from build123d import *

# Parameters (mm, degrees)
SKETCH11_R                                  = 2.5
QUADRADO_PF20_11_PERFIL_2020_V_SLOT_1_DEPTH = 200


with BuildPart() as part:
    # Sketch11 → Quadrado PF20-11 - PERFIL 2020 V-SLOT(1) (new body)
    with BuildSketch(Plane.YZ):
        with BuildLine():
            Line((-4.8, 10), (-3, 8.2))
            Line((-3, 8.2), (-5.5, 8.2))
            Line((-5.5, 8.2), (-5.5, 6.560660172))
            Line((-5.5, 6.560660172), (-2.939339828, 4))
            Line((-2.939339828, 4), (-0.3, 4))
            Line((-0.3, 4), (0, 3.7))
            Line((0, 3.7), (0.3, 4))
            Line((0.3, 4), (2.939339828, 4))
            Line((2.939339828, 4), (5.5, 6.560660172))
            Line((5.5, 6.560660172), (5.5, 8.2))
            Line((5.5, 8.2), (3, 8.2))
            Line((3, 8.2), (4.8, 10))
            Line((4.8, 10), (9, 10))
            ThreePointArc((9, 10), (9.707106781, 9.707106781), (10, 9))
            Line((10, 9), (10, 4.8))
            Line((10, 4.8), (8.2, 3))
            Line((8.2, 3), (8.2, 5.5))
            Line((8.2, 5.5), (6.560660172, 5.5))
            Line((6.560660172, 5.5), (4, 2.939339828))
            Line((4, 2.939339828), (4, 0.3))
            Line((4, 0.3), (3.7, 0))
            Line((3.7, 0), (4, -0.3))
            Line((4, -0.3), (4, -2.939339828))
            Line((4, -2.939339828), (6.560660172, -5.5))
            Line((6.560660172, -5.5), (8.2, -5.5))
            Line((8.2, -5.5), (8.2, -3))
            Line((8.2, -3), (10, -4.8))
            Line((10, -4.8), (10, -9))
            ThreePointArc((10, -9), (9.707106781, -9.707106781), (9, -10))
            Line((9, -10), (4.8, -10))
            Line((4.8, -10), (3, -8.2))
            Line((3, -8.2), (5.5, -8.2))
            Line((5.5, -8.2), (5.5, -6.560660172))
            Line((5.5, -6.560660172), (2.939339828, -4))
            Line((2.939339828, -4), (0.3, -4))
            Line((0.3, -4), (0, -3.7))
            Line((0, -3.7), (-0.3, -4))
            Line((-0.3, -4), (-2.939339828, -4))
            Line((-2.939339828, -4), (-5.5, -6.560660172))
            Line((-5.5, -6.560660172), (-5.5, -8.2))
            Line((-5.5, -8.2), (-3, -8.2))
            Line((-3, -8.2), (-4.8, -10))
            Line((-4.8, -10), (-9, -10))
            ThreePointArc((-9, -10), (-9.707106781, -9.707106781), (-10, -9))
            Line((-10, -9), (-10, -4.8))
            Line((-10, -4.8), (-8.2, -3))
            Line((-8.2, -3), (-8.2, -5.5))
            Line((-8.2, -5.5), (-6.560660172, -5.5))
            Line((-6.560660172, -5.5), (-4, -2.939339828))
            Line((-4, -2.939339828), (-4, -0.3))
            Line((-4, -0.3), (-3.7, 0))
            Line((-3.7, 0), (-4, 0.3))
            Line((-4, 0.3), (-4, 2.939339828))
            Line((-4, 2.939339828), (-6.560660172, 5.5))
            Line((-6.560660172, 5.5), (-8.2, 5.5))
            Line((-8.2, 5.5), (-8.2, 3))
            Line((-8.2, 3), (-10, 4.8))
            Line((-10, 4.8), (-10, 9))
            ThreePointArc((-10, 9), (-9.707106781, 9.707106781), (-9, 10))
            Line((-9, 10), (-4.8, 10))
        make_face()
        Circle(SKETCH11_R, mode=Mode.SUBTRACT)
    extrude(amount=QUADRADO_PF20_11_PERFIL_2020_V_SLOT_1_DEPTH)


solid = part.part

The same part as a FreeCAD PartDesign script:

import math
import FreeCAD as App
import Part
import Sketcher
from FreeCAD import Vector

doc = App.newDocument("Part")
body = doc.addObject("PartDesign::Body", "Body")

sketch1 = body.newObject("Sketcher::SketchObject", "Sketch")
sketch1.AttachmentSupport = (doc.getObject("YZ_Plane"), [""])
sketch1.MapMode = "FlatFace"
sketch1.addGeometry(Part.LineSegment(Vector(-3, 8.2, 0), Vector(-4.8, 10, 0)), False)
sketch1.addGeometry(Part.LineSegment(Vector(-4.8, 10, 0), Vector(-9, 10, 0)), False)
sketch1.addGeometry(Part.ArcOfCircle(Part.Circle(Vector(-9, 9, 0), Vector(0, 0, 1), 1), math.radians(90), math.radians(180)), False)
sketch1.addGeometry(Part.LineSegment(Vector(-10, 9, 0), Vector(-10, 4.8, 0)), False)
sketch1.addGeometry(Part.LineSegment(Vector(-10, 4.8, 0), Vector(-8.2, 3, 0)), False)
sketch1.addGeometry(Part.LineSegment(Vector(-8.2, 3, 0), Vector(-8.2, 5.5, 0)), False)
sketch1.addGeometry(Part.LineSegment(Vector(-8.2, 5.5, 0), Vector(-6.56, 5.5, 0)), False)
sketch1.addGeometry(Part.LineSegment(Vector(-6.56, 5.5, 0), Vector(-4, 2.94, 0)), False)
sketch1.addGeometry(Part.LineSegment(Vector(-4, 2.94, 0), Vector(-4, 0.3, 0)), False)
sketch1.addGeometry(Part.LineSegment(Vector(-4, 0.3, 0), Vector(-3.7, 0, 0)), False)
sketch1.addGeometry(Part.LineSegment(Vector(-3.7, 0, 0), Vector(-4, -0.3, 0)), False)
sketch1.addGeometry(Part.LineSegment(Vector(-4, -0.3, 0), Vector(-4, -2.94, 0)), False)
sketch1.addGeometry(Part.LineSegment(Vector(-4, -2.94, 0), Vector(-6.56, -5.5, 0)), False)
sketch1.addGeometry(Part.LineSegment(Vector(-6.56, -5.5, 0), Vector(-8.2, -5.5, 0)), False)
sketch1.addGeometry(Part.LineSegment(Vector(-8.2, -5.5, 0), Vector(-8.2, -3, 0)), False)
sketch1.addGeometry(Part.LineSegment(Vector(-8.2, -3, 0), Vector(-10, -4.8, 0)), False)
sketch1.addGeometry(Part.LineSegment(Vector(-10, -4.8, 0), Vector(-10, -9, 0)), False)
sketch1.addGeometry(Part.ArcOfCircle(Part.Circle(Vector(-9, -9, 0), Vector(0, 0, 1), 1), math.radians(-180), math.radians(-90)), False)
sketch1.addGeometry(Part.LineSegment(Vector(-9, -10, 0), Vector(-4.8, -10, 0)), False)
sketch1.addGeometry(Part.LineSegment(Vector(-4.8, -10, 0), Vector(-3, -8.2, 0)), False)
sketch1.addGeometry(Part.LineSegment(Vector(-3, -8.2, 0), Vector(-5.5, -8.2, 0)), False)
sketch1.addGeometry(Part.LineSegment(Vector(-5.5, -8.2, 0), Vector(-5.5, -6.56, 0)), False)
sketch1.addGeometry(Part.LineSegment(Vector(-5.5, -6.56, 0), Vector(-2.94, -4, 0)), False)
sketch1.addGeometry(Part.LineSegment(Vector(-2.94, -4, 0), Vector(-0.3, -4, 0)), False)
sketch1.addGeometry(Part.LineSegment(Vector(-0.3, -4, 0), Vector(0, -3.7, 0)), False)
sketch1.addGeometry(Part.LineSegment(Vector(0, -3.7, 0), Vector(0.3, -4, 0)), False)
sketch1.addGeometry(Part.LineSegment(Vector(0.3, -4, 0), Vector(2.94, -4, 0)), False)
sketch1.addGeometry(Part.LineSegment(Vector(2.94, -4, 0), Vector(5.5, -6.56, 0)), False)
sketch1.addGeometry(Part.LineSegment(Vector(5.5, -6.56, 0), Vector(5.5, -8.2, 0)), False)
sketch1.addGeometry(Part.LineSegment(Vector(5.5, -8.2, 0), Vector(3, -8.2, 0)), False)
sketch1.addGeometry(Part.LineSegment(Vector(3, -8.2, 0), Vector(4.8, -10, 0)), False)
sketch1.addGeometry(Part.LineSegment(Vector(4.8, -10, 0), Vector(9, -10, 0)), False)
sketch1.addGeometry(Part.ArcOfCircle(Part.Circle(Vector(9, -9, 0), Vector(0, 0, 1), 1), math.radians(-90), math.radians(0)), False)
sketch1.addGeometry(Part.LineSegment(Vector(10, -9, 0), Vector(10, -4.8, 0)), False)
sketch1.addGeometry(Part.LineSegment(Vector(10, -4.8, 0), Vector(8.2, -3, 0)), False)
sketch1.addGeometry(Part.LineSegment(Vector(8.2, -3, 0), Vector(8.2, -5.5, 0)), False)
sketch1.addGeometry(Part.LineSegment(Vector(8.2, -5.5, 0), Vector(6.56, -5.5, 0)), False)
sketch1.addGeometry(Part.LineSegment(Vector(6.56, -5.5, 0), Vector(4, -2.94, 0)), False)
sketch1.addGeometry(Part.LineSegment(Vector(4, -2.94, 0), Vector(4, -0.3, 0)), False)
sketch1.addGeometry(Part.LineSegment(Vector(4, -0.3, 0), Vector(3.7, 0, 0)), False)
sketch1.addGeometry(Part.LineSegment(Vector(3.7, 0, 0), Vector(4, 0.3, 0)), False)
sketch1.addGeometry(Part.LineSegment(Vector(4, 0.3, 0), Vector(4, 2.94, 0)), False)
sketch1.addGeometry(Part.LineSegment(Vector(4, 2.94, 0), Vector(6.56, 5.5, 0)), False)
sketch1.addGeometry(Part.LineSegment(Vector(6.56, 5.5, 0), Vector(8.2, 5.5, 0)), False)
sketch1.addGeometry(Part.LineSegment(Vector(8.2, 5.5, 0), Vector(8.2, 3, 0)), False)
sketch1.addGeometry(Part.LineSegment(Vector(8.2, 3, 0), Vector(10, 4.8, 0)), False)
sketch1.addGeometry(Part.LineSegment(Vector(10, 4.8, 0), Vector(10, 9, 0)), False)
sketch1.addGeometry(Part.ArcOfCircle(Part.Circle(Vector(9, 9, 0), Vector(0, 0, 1), 1), math.radians(0), math.radians(90)), False)
sketch1.addGeometry(Part.LineSegment(Vector(9, 10, 0), Vector(4.8, 10, 0)), False)
sketch1.addGeometry(Part.LineSegment(Vector(4.8, 10, 0), Vector(3, 8.2, 0)), False)
sketch1.addGeometry(Part.LineSegment(Vector(3, 8.2, 0), Vector(5.5, 8.2, 0)), False)
sketch1.addGeometry(Part.LineSegment(Vector(5.5, 8.2, 0), Vector(5.5, 6.56, 0)), False)
sketch1.addGeometry(Part.LineSegment(Vector(5.5, 6.56, 0), Vector(2.94, 4, 0)), False)
sketch1.addGeometry(Part.LineSegment(Vector(2.94, 4, 0), Vector(0.3, 4, 0)), False)
sketch1.addGeometry(Part.LineSegment(Vector(0.3, 4, 0), Vector(0, 3.7, 0)), False)
sketch1.addGeometry(Part.LineSegment(Vector(0, 3.7, 0), Vector(-0.3, 4, 0)), False)
sketch1.addGeometry(Part.LineSegment(Vector(-0.3, 4, 0), Vector(-2.94, 4, 0)), False)
sketch1.addGeometry(Part.LineSegment(Vector(-2.94, 4, 0), Vector(-5.5, 6.56, 0)), False)
sketch1.addGeometry(Part.LineSegment(Vector(-5.5, 6.56, 0), Vector(-5.5, 8.2, 0)), False)
sketch1.addGeometry(Part.LineSegment(Vector(-5.5, 8.2, 0), Vector(-3, 8.2, 0)), False)
sketch1.addGeometry(Part.Circle(Vector(0, 0, 0), Vector(0, 0, 1), 2.5), False)
sketch1.addConstraint(Sketcher.Constraint("Coincident", 0, 2, 1, 1))
sketch1.addConstraint(Sketcher.Constraint("Tangent", 1, 2, 2, 1))
sketch1.addConstraint(Sketcher.Constraint("Tangent", 2, 2, 3, 1))
sketch1.addConstraint(Sketcher.Constraint("Coincident", 3, 2, 4, 1))
sketch1.addConstraint(Sketcher.Constraint("Coincident", 4, 2, 5, 1))
sketch1.addConstraint(Sketcher.Constraint("Coincident", 5, 2, 6, 1))
sketch1.addConstraint(Sketcher.Constraint("Coincident", 6, 2, 7, 1))
sketch1.addConstraint(Sketcher.Constraint("Coincident", 7, 2, 8, 1))
sketch1.addConstraint(Sketcher.Constraint("Coincident", 8, 2, 9, 1))
sketch1.addConstraint(Sketcher.Constraint("Coincident", 9, 2, 10, 1))
sketch1.addConstraint(Sketcher.Constraint("Coincident", 10, 2, 11, 1))
sketch1.addConstraint(Sketcher.Constraint("Coincident", 11, 2, 12, 1))
sketch1.addConstraint(Sketcher.Constraint("Coincident", 12, 2, 13, 1))
sketch1.addConstraint(Sketcher.Constraint("Coincident", 13, 2, 14, 1))
sketch1.addConstraint(Sketcher.Constraint("Coincident", 14, 2, 15, 1))
sketch1.addConstraint(Sketcher.Constraint("Coincident", 15, 2, 16, 1))
sketch1.addConstraint(Sketcher.Constraint("Tangent", 16, 2, 17, 1))
sketch1.addConstraint(Sketcher.Constraint("Tangent", 17, 2, 18, 1))
sketch1.addConstraint(Sketcher.Constraint("Coincident", 18, 2, 19, 1))
sketch1.addConstraint(Sketcher.Constraint("Coincident", 19, 2, 20, 1))
sketch1.addConstraint(Sketcher.Constraint("Coincident", 20, 2, 21, 1))
sketch1.addConstraint(Sketcher.Constraint("Coincident", 21, 2, 22, 1))
sketch1.addConstraint(Sketcher.Constraint("Coincident", 22, 2, 23, 1))
sketch1.addConstraint(Sketcher.Constraint("Coincident", 23, 2, 24, 1))
sketch1.addConstraint(Sketcher.Constraint("Coincident", 24, 2, 25, 1))
sketch1.addConstraint(Sketcher.Constraint("Coincident", 25, 2, 26, 1))
sketch1.addConstraint(Sketcher.Constraint("Coincident", 26, 2, 27, 1))
sketch1.addConstraint(Sketcher.Constraint("Coincident", 27, 2, 28, 1))
sketch1.addConstraint(Sketcher.Constraint("Coincident", 28, 2, 29, 1))
sketch1.addConstraint(Sketcher.Constraint("Coincident", 29, 2, 30, 1))
sketch1.addConstraint(Sketcher.Constraint("Coincident", 30, 2, 31, 1))
sketch1.addConstraint(Sketcher.Constraint("Tangent", 31, 2, 32, 1))
sketch1.addConstraint(Sketcher.Constraint("Tangent", 32, 2, 33, 1))
sketch1.addConstraint(Sketcher.Constraint("Coincident", 33, 2, 34, 1))
sketch1.addConstraint(Sketcher.Constraint("Coincident", 34, 2, 35, 1))
sketch1.addConstraint(Sketcher.Constraint("Coincident", 35, 2, 36, 1))
sketch1.addConstraint(Sketcher.Constraint("Coincident", 36, 2, 37, 1))
sketch1.addConstraint(Sketcher.Constraint("Coincident", 37, 2, 38, 1))
sketch1.addConstraint(Sketcher.Constraint("Coincident", 38, 2, 39, 1))
sketch1.addConstraint(Sketcher.Constraint("Coincident", 39, 2, 40, 1))
sketch1.addConstraint(Sketcher.Constraint("Coincident", 40, 2, 41, 1))
sketch1.addConstraint(Sketcher.Constraint("Coincident", 41, 2, 42, 1))
sketch1.addConstraint(Sketcher.Constraint("Coincident", 42, 2, 43, 1))
sketch1.addConstraint(Sketcher.Constraint("Coincident", 43, 2, 44, 1))
sketch1.addConstraint(Sketcher.Constraint("Coincident", 44, 2, 45, 1))
sketch1.addConstraint(Sketcher.Constraint("Coincident", 45, 2, 46, 1))
sketch1.addConstraint(Sketcher.Constraint("Tangent", 46, 2, 47, 1))
sketch1.addConstraint(Sketcher.Constraint("Tangent", 47, 2, 48, 1))
sketch1.addConstraint(Sketcher.Constraint("Coincident", 48, 2, 49, 1))
sketch1.addConstraint(Sketcher.Constraint("Coincident", 49, 2, 50, 1))
sketch1.addConstraint(Sketcher.Constraint("Coincident", 50, 2, 51, 1))
sketch1.addConstraint(Sketcher.Constraint("Coincident", 51, 2, 52, 1))
sketch1.addConstraint(Sketcher.Constraint("Coincident", 52, 2, 53, 1))
sketch1.addConstraint(Sketcher.Constraint("Coincident", 53, 2, 54, 1))
sketch1.addConstraint(Sketcher.Constraint("Coincident", 54, 2, 55, 1))
sketch1.addConstraint(Sketcher.Constraint("Coincident", 55, 2, 56, 1))
sketch1.addConstraint(Sketcher.Constraint("Coincident", 56, 2, 57, 1))
sketch1.addConstraint(Sketcher.Constraint("Coincident", 57, 2, 58, 1))
sketch1.addConstraint(Sketcher.Constraint("Coincident", 58, 2, 59, 1))
sketch1.addConstraint(Sketcher.Constraint("Coincident", 59, 2, 0, 1))
sketch1.addConstraint(Sketcher.Constraint("Horizontal", 1))
sketch1.addConstraint(Sketcher.Constraint("Vertical", 3))
sketch1.addConstraint(Sketcher.Constraint("Vertical", 5))
sketch1.addConstraint(Sketcher.Constraint("Horizontal", 6))
sketch1.addConstraint(Sketcher.Constraint("Vertical", 8))
sketch1.addConstraint(Sketcher.Constraint("Vertical", 11))
sketch1.addConstraint(Sketcher.Constraint("Horizontal", 13))
sketch1.addConstraint(Sketcher.Constraint("Vertical", 14))
sketch1.addConstraint(Sketcher.Constraint("Vertical", 16))
sketch1.addConstraint(Sketcher.Constraint("Horizontal", 18))
sketch1.addConstraint(Sketcher.Constraint("Horizontal", 20))
sketch1.addConstraint(Sketcher.Constraint("Vertical", 21))
sketch1.addConstraint(Sketcher.Constraint("Horizontal", 23))
sketch1.addConstraint(Sketcher.Constraint("Horizontal", 26))
sketch1.addConstraint(Sketcher.Constraint("Vertical", 28))
sketch1.addConstraint(Sketcher.Constraint("Horizontal", 29))
sketch1.addConstraint(Sketcher.Constraint("Horizontal", 31))
sketch1.addConstraint(Sketcher.Constraint("Vertical", 33))
sketch1.addConstraint(Sketcher.Constraint("Vertical", 35))
sketch1.addConstraint(Sketcher.Constraint("Horizontal", 36))
sketch1.addConstraint(Sketcher.Constraint("Vertical", 38))
sketch1.addConstraint(Sketcher.Constraint("Vertical", 41))
sketch1.addConstraint(Sketcher.Constraint("Horizontal", 43))
sketch1.addConstraint(Sketcher.Constraint("Vertical", 44))
sketch1.addConstraint(Sketcher.Constraint("Vertical", 46))
sketch1.addConstraint(Sketcher.Constraint("Horizontal", 48))
sketch1.addConstraint(Sketcher.Constraint("Horizontal", 50))
sketch1.addConstraint(Sketcher.Constraint("Vertical", 51))
sketch1.addConstraint(Sketcher.Constraint("Horizontal", 53))
sketch1.addConstraint(Sketcher.Constraint("Horizontal", 56))
sketch1.addConstraint(Sketcher.Constraint("Vertical", 58))
sketch1.addConstraint(Sketcher.Constraint("Horizontal", 59))
sketch1.addConstraint(Sketcher.Constraint("Coincident", 60, 3, -1, 1))
sketch1.addConstraint(Sketcher.Constraint("Equal", 2, 17))
sketch1.addConstraint(Sketcher.Constraint("Equal", 17, 32))
sketch1.addConstraint(Sketcher.Constraint("Equal", 32, 47))
sketch1.addConstraint(Sketcher.Constraint("Symmetric", 2, 3, 32, 3, -1, 1))
sketch1.addConstraint(Sketcher.Constraint("Symmetric", 17, 3, 47, 3, -1, 1))
sketch1.addConstraint(Sketcher.Constraint("Symmetric", 4, 2, 34, 2, -1, 1))
sketch1.addConstraint(Sketcher.Constraint("Symmetric", 6, 2, 36, 2, -1, 1))
sketch1.addConstraint(Sketcher.Constraint("Symmetric", 7, 2, 37, 2, -1, 1))
sketch1.addConstraint(Sketcher.Constraint("Symmetric", 9, 2, 39, 2, -1, 1))
sketch1.addConstraint(Sketcher.Constraint("Symmetric", 10, 2, 40, 2, -1, 1))
sketch1.addConstraint(Sketcher.Constraint("Symmetric", 12, 2, 42, 2, -1, 1))
sketch1.addConstraint(Sketcher.Constraint("Symmetric", 14, 2, 44, 2, -1, 1))
sketch1.addConstraint(Sketcher.Constraint("Symmetric", 19, 2, 49, 2, -1, 1))
sketch1.addConstraint(Sketcher.Constraint("Symmetric", 21, 2, 51, 2, -1, 1))
sketch1.addConstraint(Sketcher.Constraint("Symmetric", 22, 2, 52, 2, -1, 1))
sketch1.addConstraint(Sketcher.Constraint("Symmetric", 24, 2, 54, 2, -1, 1))
sketch1.addConstraint(Sketcher.Constraint("Symmetric", 25, 2, 55, 2, -1, 1))
sketch1.addConstraint(Sketcher.Constraint("Symmetric", 27, 2, 57, 2, -1, 1))
sketch1.addConstraint(Sketcher.Constraint("Symmetric", 29, 2, 59, 2, -1, 1))
sketch1.addConstraint(Sketcher.Constraint("Symmetric", 17, 3, 32, 3, -2))
sketch1.addConstraint(Sketcher.Constraint("Symmetric", 23, 2, 25, 2, -2))
sketch1.addConstraint(Sketcher.Constraint("Symmetric", 21, 2, 27, 2, -2))
sketch1.addConstraint(Sketcher.Constraint("Symmetric", 19, 2, 29, 2, -2))
sketch1.addConstraint(Sketcher.Constraint("Symmetric", 14, 2, 34, 2, -2))
sketch1.addConstraint(Sketcher.Constraint("Symmetric", 12, 2, 36, 2, -2))
sketch1.addConstraint(Sketcher.Constraint("Symmetric", 11, 2, 37, 2, -2))
sketch1.addConstraint(Sketcher.Constraint("PointOnObject", 9, 2, -1))
sketch1.addConstraint(Sketcher.Constraint("PointOnObject", 24, 2, -2))
sketch1.addConstraint(Sketcher.Constraint("Parallel", 0, 4))
sketch1.addConstraint(Sketcher.Constraint("Parallel", 4, 7))
sketch1.addConstraint(Sketcher.Constraint("Parallel", 7, 9))
sketch1.addConstraint(Sketcher.Constraint("Perpendicular", 9, 10))
sketch1.addConstraint(Sketcher.Constraint("Parallel", 10, 12))
sketch1.addConstraint(Sketcher.Constraint("Parallel", 12, 15))
sketch1.addConstraint(Sketcher.Constraint("Parallel", 15, 19))
sketch1.addConstraint(Sketcher.Constraint("Parallel", 19, 22))
sketch1.addConstraint(Sketcher.Constraint("Parallel", 22, 24))
sketch1.addConstraint(Sketcher.Constraint("Parallel", 25, 27))
sketch1.addConstraint(Sketcher.Constraint("Parallel", 27, 30))
sketch1.addConstraint(Sketcher.Constraint("Parallel", 30, 34))
sketch1.addConstraint(Sketcher.Constraint("Parallel", 37, 39))
sketch1.addConstraint(Sketcher.Constraint("Parallel", 40, 42))
sketch1.addConstraint(Sketcher.Constraint("Parallel", 42, 45))
sketch1.addConstraint(Sketcher.Constraint("Parallel", 45, 49))
sketch1.addConstraint(Sketcher.Constraint("Parallel", 52, 54))
sketch1.addConstraint(Sketcher.Constraint("Parallel", 55, 57))
sketch1.addConstraint(Sketcher.Constraint("Equal", 48, 3))
sketch1.addConstraint(Sketcher.Constraint("Equal", 59, 5))
sketch1.addConstraint(Sketcher.Constraint("Equal", 56, 8))
sketch1.addConstraint(Sketcher.Constraint("Equal", 43, 21))
sketch1.addConstraint(Sketcher.Constraint("Equal", 0, 4))
sketch1.addConstraint(Sketcher.Constraint("Equal", 12, 22))
sketch1.addConstraint(Sketcher.Constraint("Equal", 10, 24))
sketch1.addConstraint(Sketcher.Constraint("Diameter", 60, 5.0))
sketch1.addConstraint(Sketcher.Constraint("Radius", 2, 1.0))
sketch1.addConstraint(Sketcher.Constraint("DistanceX", 1, 2, 1, 1, 4.2))
sketch1.addConstraint(Sketcher.Constraint("DistanceX", 20, 2, 20, 1, 2.5))
sketch1.addConstraint(Sketcher.Constraint("DistanceX", 2, 3, -1, 1, 9.0))
sketch1.addConstraint(Sketcher.Constraint("DistanceY", -1, 1, 4, 2, 3.0))
sketch1.addConstraint(Sketcher.Constraint("DistanceX", 7, 2, -1, 1, 4.0))
sketch1.addConstraint(Sketcher.Constraint("DistanceY", -1, 1, 8, 2, 0.3))
sketch1.addConstraint(Sketcher.Constraint("DistanceX", 6, 1, 6, 2, 1.63934))
pad1 = body.newObject("PartDesign::Pad", "Pad")
pad1.Profile = sketch1
pad1.Length = 200

doc.recompute()
